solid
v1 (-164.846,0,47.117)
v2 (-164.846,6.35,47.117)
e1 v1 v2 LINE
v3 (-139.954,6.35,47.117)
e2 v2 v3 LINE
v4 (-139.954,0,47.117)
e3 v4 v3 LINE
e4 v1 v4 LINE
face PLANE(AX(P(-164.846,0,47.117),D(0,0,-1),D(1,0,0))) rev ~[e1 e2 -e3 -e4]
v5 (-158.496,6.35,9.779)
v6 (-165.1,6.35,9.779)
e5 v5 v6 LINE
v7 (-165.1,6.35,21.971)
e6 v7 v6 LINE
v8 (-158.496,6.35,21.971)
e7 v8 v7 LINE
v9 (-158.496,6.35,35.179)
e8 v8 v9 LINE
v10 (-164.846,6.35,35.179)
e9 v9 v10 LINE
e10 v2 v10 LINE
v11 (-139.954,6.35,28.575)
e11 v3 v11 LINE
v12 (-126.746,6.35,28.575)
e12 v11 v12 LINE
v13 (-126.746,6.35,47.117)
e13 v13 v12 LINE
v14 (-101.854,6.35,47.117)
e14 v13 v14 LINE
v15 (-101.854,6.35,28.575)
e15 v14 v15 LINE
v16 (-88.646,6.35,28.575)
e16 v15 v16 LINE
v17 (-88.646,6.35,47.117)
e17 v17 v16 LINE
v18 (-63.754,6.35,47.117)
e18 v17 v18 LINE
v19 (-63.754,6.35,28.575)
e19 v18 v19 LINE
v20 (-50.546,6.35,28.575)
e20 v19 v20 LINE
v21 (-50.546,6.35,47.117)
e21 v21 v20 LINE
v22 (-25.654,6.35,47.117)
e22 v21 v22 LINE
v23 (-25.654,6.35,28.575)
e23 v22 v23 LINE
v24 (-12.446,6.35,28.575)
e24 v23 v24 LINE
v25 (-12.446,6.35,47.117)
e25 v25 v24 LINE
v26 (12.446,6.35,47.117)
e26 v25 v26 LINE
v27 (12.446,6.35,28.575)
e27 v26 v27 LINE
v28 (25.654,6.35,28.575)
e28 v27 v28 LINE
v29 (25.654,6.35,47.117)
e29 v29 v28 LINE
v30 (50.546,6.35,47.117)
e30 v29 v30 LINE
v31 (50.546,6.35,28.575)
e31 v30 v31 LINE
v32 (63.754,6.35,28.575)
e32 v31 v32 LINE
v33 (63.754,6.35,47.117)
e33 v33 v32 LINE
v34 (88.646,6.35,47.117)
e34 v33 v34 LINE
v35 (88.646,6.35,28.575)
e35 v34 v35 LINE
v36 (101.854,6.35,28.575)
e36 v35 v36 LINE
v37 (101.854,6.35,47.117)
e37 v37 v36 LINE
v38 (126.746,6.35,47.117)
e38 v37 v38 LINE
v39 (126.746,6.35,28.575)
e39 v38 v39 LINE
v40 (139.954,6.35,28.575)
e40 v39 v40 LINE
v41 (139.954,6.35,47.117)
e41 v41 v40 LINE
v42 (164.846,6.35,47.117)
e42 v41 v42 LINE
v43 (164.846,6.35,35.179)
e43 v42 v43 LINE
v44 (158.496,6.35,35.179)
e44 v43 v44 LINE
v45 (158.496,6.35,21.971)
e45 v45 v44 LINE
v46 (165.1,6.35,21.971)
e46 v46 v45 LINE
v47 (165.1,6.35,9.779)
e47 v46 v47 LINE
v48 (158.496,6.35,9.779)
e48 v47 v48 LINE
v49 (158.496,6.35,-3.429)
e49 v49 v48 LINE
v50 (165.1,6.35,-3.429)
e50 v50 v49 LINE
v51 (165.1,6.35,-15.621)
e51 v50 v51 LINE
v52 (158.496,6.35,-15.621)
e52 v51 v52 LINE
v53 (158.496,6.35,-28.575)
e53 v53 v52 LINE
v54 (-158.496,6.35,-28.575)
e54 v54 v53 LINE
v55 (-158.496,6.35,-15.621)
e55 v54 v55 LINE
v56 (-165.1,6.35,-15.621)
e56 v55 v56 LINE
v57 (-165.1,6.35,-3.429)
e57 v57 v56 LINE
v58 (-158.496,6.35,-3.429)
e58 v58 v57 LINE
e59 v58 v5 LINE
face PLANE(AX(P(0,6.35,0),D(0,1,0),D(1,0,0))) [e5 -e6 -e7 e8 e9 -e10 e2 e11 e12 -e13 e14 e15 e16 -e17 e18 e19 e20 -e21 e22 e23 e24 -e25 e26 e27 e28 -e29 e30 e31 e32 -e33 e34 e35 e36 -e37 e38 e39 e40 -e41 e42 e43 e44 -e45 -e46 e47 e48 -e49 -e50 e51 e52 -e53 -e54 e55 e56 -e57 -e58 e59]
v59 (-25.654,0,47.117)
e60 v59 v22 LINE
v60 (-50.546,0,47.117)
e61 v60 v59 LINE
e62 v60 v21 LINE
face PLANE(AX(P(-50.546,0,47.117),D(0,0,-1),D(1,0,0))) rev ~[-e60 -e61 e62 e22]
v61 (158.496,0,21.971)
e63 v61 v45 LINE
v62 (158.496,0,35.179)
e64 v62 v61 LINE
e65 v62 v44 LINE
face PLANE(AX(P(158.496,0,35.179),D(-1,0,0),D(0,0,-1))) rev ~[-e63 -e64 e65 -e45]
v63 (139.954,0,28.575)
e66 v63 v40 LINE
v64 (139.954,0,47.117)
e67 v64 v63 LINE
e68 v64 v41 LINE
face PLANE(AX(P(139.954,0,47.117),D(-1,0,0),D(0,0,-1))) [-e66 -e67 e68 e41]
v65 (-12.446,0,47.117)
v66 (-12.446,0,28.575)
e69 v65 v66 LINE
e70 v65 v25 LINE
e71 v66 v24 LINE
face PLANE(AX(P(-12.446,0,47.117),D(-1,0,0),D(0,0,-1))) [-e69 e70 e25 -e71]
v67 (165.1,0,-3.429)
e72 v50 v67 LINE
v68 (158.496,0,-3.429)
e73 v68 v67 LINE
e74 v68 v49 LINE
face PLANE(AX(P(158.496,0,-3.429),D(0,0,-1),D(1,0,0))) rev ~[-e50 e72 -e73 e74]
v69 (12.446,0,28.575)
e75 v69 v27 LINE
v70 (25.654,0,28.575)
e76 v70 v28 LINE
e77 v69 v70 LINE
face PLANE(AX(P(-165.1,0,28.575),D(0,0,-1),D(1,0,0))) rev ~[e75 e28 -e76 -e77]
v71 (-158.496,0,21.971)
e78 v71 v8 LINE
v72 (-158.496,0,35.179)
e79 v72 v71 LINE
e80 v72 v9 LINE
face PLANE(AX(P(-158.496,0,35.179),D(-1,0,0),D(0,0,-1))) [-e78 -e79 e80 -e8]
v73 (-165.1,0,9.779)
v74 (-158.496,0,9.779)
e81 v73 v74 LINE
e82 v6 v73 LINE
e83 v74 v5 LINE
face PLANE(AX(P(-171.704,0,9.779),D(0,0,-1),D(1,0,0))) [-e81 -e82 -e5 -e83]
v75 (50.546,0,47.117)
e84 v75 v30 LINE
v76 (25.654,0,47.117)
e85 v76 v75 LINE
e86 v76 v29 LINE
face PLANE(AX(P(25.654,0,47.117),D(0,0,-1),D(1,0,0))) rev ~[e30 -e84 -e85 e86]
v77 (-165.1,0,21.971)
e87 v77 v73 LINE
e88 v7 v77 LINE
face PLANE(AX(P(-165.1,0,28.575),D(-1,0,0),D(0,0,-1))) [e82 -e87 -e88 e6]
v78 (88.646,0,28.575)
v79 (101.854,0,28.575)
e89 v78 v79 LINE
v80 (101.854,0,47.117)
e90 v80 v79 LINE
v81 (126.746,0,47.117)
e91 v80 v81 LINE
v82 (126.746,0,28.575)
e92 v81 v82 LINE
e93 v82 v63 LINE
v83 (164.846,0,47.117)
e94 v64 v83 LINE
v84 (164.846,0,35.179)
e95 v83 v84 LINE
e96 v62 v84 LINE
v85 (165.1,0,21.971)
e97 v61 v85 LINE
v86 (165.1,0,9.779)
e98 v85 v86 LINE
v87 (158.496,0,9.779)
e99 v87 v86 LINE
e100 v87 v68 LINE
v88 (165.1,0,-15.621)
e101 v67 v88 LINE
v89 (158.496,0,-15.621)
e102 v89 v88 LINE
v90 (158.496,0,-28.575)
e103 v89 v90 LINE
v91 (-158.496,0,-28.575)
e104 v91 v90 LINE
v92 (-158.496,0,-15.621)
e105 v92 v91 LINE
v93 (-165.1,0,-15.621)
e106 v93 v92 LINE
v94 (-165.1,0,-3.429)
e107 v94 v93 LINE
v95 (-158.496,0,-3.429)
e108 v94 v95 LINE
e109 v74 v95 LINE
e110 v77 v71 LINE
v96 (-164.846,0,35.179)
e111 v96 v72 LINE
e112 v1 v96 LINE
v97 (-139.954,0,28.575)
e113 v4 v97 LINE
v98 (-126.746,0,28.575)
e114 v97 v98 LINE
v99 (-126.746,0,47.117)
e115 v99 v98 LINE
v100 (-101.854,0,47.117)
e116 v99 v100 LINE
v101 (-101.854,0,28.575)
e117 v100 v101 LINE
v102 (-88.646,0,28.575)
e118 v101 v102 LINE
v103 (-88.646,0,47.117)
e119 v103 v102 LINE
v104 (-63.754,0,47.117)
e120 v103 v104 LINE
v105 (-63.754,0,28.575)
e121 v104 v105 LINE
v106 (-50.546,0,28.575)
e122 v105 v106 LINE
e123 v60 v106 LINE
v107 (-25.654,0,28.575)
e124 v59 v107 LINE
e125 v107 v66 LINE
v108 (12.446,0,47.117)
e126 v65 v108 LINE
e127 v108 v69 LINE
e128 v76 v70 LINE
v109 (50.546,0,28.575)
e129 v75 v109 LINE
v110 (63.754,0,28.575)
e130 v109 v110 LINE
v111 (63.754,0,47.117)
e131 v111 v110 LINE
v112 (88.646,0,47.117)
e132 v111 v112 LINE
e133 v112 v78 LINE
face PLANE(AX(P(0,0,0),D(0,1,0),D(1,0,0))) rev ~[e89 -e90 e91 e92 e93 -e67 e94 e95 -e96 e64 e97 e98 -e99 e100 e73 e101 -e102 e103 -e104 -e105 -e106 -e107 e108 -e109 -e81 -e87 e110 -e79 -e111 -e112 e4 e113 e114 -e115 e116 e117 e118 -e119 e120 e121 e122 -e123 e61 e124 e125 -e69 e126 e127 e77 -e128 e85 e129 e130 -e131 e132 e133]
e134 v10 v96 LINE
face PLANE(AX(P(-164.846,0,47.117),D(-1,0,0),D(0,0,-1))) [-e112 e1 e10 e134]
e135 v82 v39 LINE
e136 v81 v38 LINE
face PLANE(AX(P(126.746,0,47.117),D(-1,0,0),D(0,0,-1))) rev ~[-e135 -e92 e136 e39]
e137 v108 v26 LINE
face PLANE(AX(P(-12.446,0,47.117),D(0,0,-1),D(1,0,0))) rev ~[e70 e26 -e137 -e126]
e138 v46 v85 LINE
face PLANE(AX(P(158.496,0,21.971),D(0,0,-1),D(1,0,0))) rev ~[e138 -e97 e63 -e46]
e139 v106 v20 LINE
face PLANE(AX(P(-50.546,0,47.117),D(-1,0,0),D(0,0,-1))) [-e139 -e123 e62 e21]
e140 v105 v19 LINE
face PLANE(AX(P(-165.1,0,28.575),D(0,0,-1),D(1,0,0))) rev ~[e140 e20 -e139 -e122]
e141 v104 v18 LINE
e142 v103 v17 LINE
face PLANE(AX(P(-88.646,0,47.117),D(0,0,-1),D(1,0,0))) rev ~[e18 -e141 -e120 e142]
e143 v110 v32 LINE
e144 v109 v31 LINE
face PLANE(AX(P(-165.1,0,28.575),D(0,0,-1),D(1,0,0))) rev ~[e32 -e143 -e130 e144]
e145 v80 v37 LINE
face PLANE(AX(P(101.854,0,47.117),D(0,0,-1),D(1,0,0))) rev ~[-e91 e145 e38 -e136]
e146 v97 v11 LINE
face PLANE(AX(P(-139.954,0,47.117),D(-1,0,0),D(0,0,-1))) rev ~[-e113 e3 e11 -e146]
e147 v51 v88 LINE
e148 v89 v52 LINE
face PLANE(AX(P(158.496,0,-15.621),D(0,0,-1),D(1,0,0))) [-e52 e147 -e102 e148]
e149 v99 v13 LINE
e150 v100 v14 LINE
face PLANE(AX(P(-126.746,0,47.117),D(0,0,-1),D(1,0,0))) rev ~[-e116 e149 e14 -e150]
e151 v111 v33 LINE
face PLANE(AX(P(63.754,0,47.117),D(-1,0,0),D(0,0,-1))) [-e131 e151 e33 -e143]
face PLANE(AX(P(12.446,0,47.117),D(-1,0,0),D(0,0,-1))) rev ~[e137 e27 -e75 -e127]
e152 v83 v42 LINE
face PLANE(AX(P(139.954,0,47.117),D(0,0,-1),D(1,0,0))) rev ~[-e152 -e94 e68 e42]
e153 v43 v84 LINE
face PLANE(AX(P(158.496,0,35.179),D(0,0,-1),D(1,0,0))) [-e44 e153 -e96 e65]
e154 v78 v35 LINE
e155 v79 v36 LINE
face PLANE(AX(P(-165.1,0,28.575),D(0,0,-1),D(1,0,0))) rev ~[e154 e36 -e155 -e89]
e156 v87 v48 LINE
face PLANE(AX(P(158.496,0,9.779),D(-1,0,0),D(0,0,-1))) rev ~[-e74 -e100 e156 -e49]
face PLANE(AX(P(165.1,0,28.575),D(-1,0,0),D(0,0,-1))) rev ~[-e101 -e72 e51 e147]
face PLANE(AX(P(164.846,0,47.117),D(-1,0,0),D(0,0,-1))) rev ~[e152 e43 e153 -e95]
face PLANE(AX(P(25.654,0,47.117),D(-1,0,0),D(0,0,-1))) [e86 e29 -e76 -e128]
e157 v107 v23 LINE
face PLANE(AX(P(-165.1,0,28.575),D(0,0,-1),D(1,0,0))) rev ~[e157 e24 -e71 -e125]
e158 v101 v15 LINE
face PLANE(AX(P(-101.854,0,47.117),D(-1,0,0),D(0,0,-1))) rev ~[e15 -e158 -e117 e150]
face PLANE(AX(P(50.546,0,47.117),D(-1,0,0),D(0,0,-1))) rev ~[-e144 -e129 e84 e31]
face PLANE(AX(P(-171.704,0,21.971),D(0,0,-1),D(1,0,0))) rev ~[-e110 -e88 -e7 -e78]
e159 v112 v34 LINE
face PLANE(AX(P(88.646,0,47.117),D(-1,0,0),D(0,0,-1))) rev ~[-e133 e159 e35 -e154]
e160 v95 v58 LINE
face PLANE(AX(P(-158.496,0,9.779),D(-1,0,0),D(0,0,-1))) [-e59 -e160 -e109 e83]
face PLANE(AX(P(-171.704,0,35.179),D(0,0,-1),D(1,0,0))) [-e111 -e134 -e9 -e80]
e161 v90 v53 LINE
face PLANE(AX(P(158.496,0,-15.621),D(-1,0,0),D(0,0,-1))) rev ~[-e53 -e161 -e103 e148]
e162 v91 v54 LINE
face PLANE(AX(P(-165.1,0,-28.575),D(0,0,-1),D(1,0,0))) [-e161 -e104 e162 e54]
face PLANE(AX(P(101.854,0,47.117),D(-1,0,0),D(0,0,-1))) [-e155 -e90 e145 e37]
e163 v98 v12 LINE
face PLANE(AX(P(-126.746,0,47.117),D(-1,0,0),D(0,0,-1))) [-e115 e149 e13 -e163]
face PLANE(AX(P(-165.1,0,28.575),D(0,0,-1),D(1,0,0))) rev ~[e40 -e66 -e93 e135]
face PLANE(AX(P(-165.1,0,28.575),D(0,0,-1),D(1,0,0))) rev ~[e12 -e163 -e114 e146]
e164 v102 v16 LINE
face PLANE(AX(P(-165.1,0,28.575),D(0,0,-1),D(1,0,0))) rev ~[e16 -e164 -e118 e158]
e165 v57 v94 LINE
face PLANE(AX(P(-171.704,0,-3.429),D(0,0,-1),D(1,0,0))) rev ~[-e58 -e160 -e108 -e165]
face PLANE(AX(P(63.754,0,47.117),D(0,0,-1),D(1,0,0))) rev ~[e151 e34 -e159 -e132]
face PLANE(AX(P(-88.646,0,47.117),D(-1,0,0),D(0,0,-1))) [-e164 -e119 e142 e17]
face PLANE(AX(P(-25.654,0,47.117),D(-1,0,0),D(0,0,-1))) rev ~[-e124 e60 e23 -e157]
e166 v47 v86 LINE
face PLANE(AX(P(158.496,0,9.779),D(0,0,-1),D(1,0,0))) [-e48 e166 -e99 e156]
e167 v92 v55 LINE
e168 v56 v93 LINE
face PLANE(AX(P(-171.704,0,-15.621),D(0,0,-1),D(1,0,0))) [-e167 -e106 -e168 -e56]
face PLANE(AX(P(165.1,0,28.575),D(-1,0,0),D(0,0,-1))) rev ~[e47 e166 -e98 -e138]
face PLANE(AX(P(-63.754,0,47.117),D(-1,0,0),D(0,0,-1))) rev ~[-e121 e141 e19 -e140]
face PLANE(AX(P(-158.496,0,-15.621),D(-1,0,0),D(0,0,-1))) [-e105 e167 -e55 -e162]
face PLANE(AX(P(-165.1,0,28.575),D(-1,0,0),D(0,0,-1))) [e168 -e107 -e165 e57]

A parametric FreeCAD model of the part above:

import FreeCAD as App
import Part
import Sketcher
from FreeCAD import Vector
Q = App.Units.Quantity


def add_polygon(sketch, points):
    """Adds a closed chain of lines whose ends are joined by coincident constraints."""
    first, n = sketch.GeometryCount, len(points)
    for a, b in zip(points, points[1:] + points[:1]):
        sketch.addGeometry(Part.LineSegment(App.Vector(*a, 0), App.Vector(*b, 0)), False)
    for i in range(n):
        sketch.addConstraint(Sketcher.Constraint("Coincident", first + i, 2, first + (i + 1) % n, 1))

doc = App.newDocument("Part")
body = doc.addObject("PartDesign::Body", "Body")

# Sketch on XZ plane
sketch1 = body.newObject("Sketcher::SketchObject", "Sketch")
sketch1.AttachmentSupport = (doc.getObject("XZ_Plane"), [""])
sketch1.MapMode = "FlatFace"
add_polygon(sketch1, [(-165, -29), (-165, 29), (165, 29), (165, -29)])  # lines 0-3
sketch1.addConstraint([
    Sketcher.Constraint("Vertical", 0),
    Sketcher.Constraint("Horizontal", 1),
    Sketcher.Constraint("Vertical", 2),
    Sketcher.Constraint("Horizontal", 3),
    Sketcher.Constraint("Symmetric", 0, 2, 2, 2, -1, 1),
    Sketcher.Constraint("DistanceX", 1, 1, 1, 2, Q("13 in")),
    Sketcher.Constraint("DistanceY", 0, 1, 0, 2, Q("2.25 in")),
])
pad1 = body.newObject("PartDesign::Pad", "Pad")
pad1.Profile = sketch1
pad1.Length = Q("0.25 in")
pad1.Reversed = True

# Sketch on XZ plane
sketch2 = body.newObject("Sketcher::SketchObject", "Sketch001")
sketch2.AttachmentSupport = (doc.getObject("XZ_Plane"), [""])
sketch2.MapMode = "FlatFace"
add_polygon(sketch2, [(-127, 29), (-127, 47), (-102, 47), (-102, 29)])  # lines 0-3
add_polygon(sketch2, [(-89, 29), (-89, 47), (-64, 47), (-64, 29)])  # lines 4-7
add_polygon(sketch2, [(-51, 29), (-51, 47), (-26, 47), (-26, 29)])  # lines 8-11
add_polygon(sketch2, [(-12, 29), (-12, 47), (12, 47), (12, 29)])  # lines 12-15
add_polygon(sketch2, [(26, 29), (26, 47), (51, 47), (51, 29)])  # lines 16-19
add_polygon(sketch2, [(64, 29), (64, 47), (89, 47), (89, 29)])  # lines 20-23
add_polygon(sketch2, [(102, 29), (102, 47), (127, 47), (127, 29)])  # lines 24-27
add_polygon(sketch2, [(140, 29), (140, 47), (165, 47), (165, 29)])  # lines 28-31
add_polygon(sketch2, [(-165, 29), (-165, 47), (-140, 47), (-140, 29)])  # lines 32-35
sketch2.addConstraint([
    Sketcher.Constraint("Vertical", 0),
    Sketcher.Constraint("Horizontal", 1),
    Sketcher.Constraint("Vertical", 2),
    Sketcher.Constraint("Horizontal", 3),
    Sketcher.Constraint("Vertical", 4),
    Sketcher.Constraint("Horizontal", 5),
    Sketcher.Constraint("Vertical", 6),
    Sketcher.Constraint("Horizontal", 7),
    Sketcher.Constraint("Vertical", 8),
    Sketcher.Constraint("Horizontal", 9),
    Sketcher.Constraint("Vertical", 10),
    Sketcher.Constraint("Horizontal", 11),
    Sketcher.Constraint("Vertical", 12),
    Sketcher.Constraint("Horizontal", 13),
    Sketcher.Constraint("Vertical", 14),
    Sketcher.Constraint("Horizontal", 15),
    Sketcher.Constraint("Vertical", 16),
    Sketcher.Constraint("Horizontal", 17),
    Sketcher.Constraint("Vertical", 18),
    Sketcher.Constraint("Horizontal", 19),
    Sketcher.Constraint("Vertical", 20),
    Sketcher.Constraint("Horizontal", 21),
    Sketcher.Constraint("Vertical", 22),
    Sketcher.Constraint("Horizontal", 23),
    Sketcher.Constraint("Vertical", 24),
    Sketcher.Constraint("Horizontal", 25),
    Sketcher.Constraint("Vertical", 26),
    Sketcher.Constraint("Horizontal", 27),
    Sketcher.Constraint("Vertical", 28),
    Sketcher.Constraint("Horizontal", 29),
    Sketcher.Constraint("Vertical", 30),
    Sketcher.Constraint("Horizontal", 31),
    Sketcher.Constraint("Vertical", 32),
    Sketcher.Constraint("Horizontal", 33),
    Sketcher.Constraint("Vertical", 34),
    Sketcher.Constraint("Horizontal", 35),
    Sketcher.Constraint("Symmetric", 9, 2, 16, 2, -2),
    Sketcher.Constraint("Symmetric", 11, 2, 18, 2, -2),
    Sketcher.Constraint("Symmetric", 5, 2, 20, 2, -2),
    Sketcher.Constraint("Symmetric", 7, 2, 22, 2, -2),
    Sketcher.Constraint("Symmetric", 1, 2, 24, 2, -2),
    Sketcher.Constraint("Symmetric", 3, 2, 26, 2, -2),
    Sketcher.Constraint("Symmetric", 29, 2, 32, 2, -2),
    Sketcher.Constraint("Symmetric", 31, 2, 34, 2, -2),
    Sketcher.Constraint("Horizontal", 1, 2, 4, 2),
    Sketcher.Constraint("Horizontal", 3, 2, 6, 2),
    Sketcher.Constraint("Horizontal", 5, 2, 8, 2),
    Sketcher.Constraint("Horizontal", 7, 2, 10, 2),
    Sketcher.Constraint("Horizontal", 9, 2, 12, 2),
    Sketcher.Constraint("Horizontal", 11, 2, 14, 2),
    Sketcher.Constraint("Horizontal", 25, 2, 28, 2),
    Sketcher.Constraint("Horizontal", 27, 2, 30, 2),
    Sketcher.Constraint("Equal", 3, 5),
    Sketcher.Constraint("Equal", 7, 9),
    Sketcher.Constraint("Equal", 11, 13),
    Sketcher.Constraint("Equal", 27, 29),
    Sketcher.Constraint("DistanceX", 32, 2, 4, 2, Q("3 in")),
    Sketcher.Constraint("DistanceX", 1, 1, 1, 2, Q("0.98 in")),
    Sketcher.Constraint("DistanceY", 0, 1, 0, 2, Q("0.73 in")),
    Sketcher.Constraint("DistanceX", 0, 2, 4, 2, Q("1.5 in")),
    Sketcher.Constraint("DistanceX", 4, 2, 8, 2, Q("1.5 in")),
    Sketcher.Constraint("DistanceX", 8, 2, 12, 2, Q("1.5 in")),
    Sketcher.Constraint("DistanceX", 12, 2, 16, 2, Q("1.5 in")),
    Sketcher.Constraint("DistanceY", -1, 1, 0, 2, Q("1.855 in")),
])
pad2 = body.newObject("PartDesign::Pad", "Pad001")
pad2.Profile = sketch2
pad2.Length = Q("0.25 in")
pad2.Reversed = True

# Sketch on XZ plane
sketch3 = body.newObject("Sketcher::SketchObject", "Sketch002")
sketch3.AttachmentSupport = (doc.getObject("XZ_Plane"), [""])
sketch3.MapMode = "FlatFace"
add_polygon(sketch3, [(158, -29), (158, -16), (172, -16), (172, -29)])  # lines 0-3
add_polygon(sketch3, [(-172, 22), (-172, 35), (-158, 35), (-158, 22)])  # lines 4-7
add_polygon(sketch3, [(158, -3), (158, 10), (172, 10), (172, -3)])  # lines 8-11
add_polygon(sketch3, [(158, 22), (158, 35), (172, 35), (172, 22)])  # lines 12-15
add_polygon(sketch3, [(-172, -3), (-172, 10), (-158, 10), (-158, -3)])  # lines 16-19
add_polygon(sketch3, [(-172, -29), (-172, -16), (-158, -16), (-158, -29)])  # lines 20-23
sketch3.addConstraint([
    Sketcher.Constraint("Vertical", 0),
    Sketcher.Constraint("Horizontal", 1),
    Sketcher.Constraint("Vertical", 2),
    Sketcher.Constraint("Horizontal", 3),
    Sketcher.Constraint("Vertical", 4),
    Sketcher.Constraint("Horizontal", 5),
    Sketcher.Constraint("Vertical", 6),
    Sketcher.Constraint("Horizontal", 7),
    Sketcher.Constraint("Vertical", 8),
    Sketcher.Constraint("Horizontal", 9),
    Sketcher.Constraint("Vertical", 10),
    Sketcher.Constraint("Horizontal", 11),
    Sketcher.Constraint("Vertical", 12),
    Sketcher.Constraint("Horizontal", 13),
    Sketcher.Constraint("Vertical", 14),
    Sketcher.Constraint("Horizontal", 15),
    Sketcher.Constraint("Vertical", 16),
    Sketcher.Constraint("Horizontal", 17),
    Sketcher.Constraint("Vertical", 18),
    Sketcher.Constraint("Horizontal", 19),
    Sketcher.Constraint("Vertical", 20),
    Sketcher.Constraint("Horizontal", 21),
    Sketcher.Constraint("Vertical", 22),
    Sketcher.Constraint("Horizontal", 23),
    Sketcher.Constraint("Symmetric", 5, 2, 12, 2, -2),
    Sketcher.Constraint("Symmetric", 7, 2, 14, 2, -2),
    Sketcher.Constraint("Symmetric", 9, 2, 16, 2, -2),
    Sketcher.Constraint("Symmetric", 11, 2, 18, 2, -2),
    Sketcher.Constraint("Symmetric", 1, 2, 20, 2, -2),
    Sketcher.Constraint("Symmetric", 3, 2, 22, 2, -2),
    Sketcher.Constraint("Vertical", 3, 2, 8, 2),
    Sketcher.Constraint("Vertical", 2, 2, 9, 2),
    Sketcher.Constraint("Vertical", 11, 2, 12, 2),
    Sketcher.Constraint("Vertical", 10, 2, 13, 2),
    Sketcher.Constraint("Equal", 23, 0),
    Sketcher.Constraint("Equal", 2, 4),
    Sketcher.Constraint("Equal", 6, 8),
    Sketcher.Constraint("DistanceX", 4, 2, 0, 2, Q("13 in")),
    Sketcher.Constraint("DistanceY", 0, 2, 4, 2, Q("2 in")),
    Sketcher.Constraint("DistanceY", 0, 2, 8, 2, Q("1 in")),
    Sketcher.Constraint("DistanceX", 1, 1, 1, 2, Q("0.52 in")),
    Sketcher.Constraint("DistanceY", 0, 2, -1, 1, Q("0.615 in")),
])
pocket1 = body.newObject("PartDesign::Pocket", "Pocket")
pocket1.Profile = sketch3
pocket1.Type = "ThroughAll"

doc.recompute()
